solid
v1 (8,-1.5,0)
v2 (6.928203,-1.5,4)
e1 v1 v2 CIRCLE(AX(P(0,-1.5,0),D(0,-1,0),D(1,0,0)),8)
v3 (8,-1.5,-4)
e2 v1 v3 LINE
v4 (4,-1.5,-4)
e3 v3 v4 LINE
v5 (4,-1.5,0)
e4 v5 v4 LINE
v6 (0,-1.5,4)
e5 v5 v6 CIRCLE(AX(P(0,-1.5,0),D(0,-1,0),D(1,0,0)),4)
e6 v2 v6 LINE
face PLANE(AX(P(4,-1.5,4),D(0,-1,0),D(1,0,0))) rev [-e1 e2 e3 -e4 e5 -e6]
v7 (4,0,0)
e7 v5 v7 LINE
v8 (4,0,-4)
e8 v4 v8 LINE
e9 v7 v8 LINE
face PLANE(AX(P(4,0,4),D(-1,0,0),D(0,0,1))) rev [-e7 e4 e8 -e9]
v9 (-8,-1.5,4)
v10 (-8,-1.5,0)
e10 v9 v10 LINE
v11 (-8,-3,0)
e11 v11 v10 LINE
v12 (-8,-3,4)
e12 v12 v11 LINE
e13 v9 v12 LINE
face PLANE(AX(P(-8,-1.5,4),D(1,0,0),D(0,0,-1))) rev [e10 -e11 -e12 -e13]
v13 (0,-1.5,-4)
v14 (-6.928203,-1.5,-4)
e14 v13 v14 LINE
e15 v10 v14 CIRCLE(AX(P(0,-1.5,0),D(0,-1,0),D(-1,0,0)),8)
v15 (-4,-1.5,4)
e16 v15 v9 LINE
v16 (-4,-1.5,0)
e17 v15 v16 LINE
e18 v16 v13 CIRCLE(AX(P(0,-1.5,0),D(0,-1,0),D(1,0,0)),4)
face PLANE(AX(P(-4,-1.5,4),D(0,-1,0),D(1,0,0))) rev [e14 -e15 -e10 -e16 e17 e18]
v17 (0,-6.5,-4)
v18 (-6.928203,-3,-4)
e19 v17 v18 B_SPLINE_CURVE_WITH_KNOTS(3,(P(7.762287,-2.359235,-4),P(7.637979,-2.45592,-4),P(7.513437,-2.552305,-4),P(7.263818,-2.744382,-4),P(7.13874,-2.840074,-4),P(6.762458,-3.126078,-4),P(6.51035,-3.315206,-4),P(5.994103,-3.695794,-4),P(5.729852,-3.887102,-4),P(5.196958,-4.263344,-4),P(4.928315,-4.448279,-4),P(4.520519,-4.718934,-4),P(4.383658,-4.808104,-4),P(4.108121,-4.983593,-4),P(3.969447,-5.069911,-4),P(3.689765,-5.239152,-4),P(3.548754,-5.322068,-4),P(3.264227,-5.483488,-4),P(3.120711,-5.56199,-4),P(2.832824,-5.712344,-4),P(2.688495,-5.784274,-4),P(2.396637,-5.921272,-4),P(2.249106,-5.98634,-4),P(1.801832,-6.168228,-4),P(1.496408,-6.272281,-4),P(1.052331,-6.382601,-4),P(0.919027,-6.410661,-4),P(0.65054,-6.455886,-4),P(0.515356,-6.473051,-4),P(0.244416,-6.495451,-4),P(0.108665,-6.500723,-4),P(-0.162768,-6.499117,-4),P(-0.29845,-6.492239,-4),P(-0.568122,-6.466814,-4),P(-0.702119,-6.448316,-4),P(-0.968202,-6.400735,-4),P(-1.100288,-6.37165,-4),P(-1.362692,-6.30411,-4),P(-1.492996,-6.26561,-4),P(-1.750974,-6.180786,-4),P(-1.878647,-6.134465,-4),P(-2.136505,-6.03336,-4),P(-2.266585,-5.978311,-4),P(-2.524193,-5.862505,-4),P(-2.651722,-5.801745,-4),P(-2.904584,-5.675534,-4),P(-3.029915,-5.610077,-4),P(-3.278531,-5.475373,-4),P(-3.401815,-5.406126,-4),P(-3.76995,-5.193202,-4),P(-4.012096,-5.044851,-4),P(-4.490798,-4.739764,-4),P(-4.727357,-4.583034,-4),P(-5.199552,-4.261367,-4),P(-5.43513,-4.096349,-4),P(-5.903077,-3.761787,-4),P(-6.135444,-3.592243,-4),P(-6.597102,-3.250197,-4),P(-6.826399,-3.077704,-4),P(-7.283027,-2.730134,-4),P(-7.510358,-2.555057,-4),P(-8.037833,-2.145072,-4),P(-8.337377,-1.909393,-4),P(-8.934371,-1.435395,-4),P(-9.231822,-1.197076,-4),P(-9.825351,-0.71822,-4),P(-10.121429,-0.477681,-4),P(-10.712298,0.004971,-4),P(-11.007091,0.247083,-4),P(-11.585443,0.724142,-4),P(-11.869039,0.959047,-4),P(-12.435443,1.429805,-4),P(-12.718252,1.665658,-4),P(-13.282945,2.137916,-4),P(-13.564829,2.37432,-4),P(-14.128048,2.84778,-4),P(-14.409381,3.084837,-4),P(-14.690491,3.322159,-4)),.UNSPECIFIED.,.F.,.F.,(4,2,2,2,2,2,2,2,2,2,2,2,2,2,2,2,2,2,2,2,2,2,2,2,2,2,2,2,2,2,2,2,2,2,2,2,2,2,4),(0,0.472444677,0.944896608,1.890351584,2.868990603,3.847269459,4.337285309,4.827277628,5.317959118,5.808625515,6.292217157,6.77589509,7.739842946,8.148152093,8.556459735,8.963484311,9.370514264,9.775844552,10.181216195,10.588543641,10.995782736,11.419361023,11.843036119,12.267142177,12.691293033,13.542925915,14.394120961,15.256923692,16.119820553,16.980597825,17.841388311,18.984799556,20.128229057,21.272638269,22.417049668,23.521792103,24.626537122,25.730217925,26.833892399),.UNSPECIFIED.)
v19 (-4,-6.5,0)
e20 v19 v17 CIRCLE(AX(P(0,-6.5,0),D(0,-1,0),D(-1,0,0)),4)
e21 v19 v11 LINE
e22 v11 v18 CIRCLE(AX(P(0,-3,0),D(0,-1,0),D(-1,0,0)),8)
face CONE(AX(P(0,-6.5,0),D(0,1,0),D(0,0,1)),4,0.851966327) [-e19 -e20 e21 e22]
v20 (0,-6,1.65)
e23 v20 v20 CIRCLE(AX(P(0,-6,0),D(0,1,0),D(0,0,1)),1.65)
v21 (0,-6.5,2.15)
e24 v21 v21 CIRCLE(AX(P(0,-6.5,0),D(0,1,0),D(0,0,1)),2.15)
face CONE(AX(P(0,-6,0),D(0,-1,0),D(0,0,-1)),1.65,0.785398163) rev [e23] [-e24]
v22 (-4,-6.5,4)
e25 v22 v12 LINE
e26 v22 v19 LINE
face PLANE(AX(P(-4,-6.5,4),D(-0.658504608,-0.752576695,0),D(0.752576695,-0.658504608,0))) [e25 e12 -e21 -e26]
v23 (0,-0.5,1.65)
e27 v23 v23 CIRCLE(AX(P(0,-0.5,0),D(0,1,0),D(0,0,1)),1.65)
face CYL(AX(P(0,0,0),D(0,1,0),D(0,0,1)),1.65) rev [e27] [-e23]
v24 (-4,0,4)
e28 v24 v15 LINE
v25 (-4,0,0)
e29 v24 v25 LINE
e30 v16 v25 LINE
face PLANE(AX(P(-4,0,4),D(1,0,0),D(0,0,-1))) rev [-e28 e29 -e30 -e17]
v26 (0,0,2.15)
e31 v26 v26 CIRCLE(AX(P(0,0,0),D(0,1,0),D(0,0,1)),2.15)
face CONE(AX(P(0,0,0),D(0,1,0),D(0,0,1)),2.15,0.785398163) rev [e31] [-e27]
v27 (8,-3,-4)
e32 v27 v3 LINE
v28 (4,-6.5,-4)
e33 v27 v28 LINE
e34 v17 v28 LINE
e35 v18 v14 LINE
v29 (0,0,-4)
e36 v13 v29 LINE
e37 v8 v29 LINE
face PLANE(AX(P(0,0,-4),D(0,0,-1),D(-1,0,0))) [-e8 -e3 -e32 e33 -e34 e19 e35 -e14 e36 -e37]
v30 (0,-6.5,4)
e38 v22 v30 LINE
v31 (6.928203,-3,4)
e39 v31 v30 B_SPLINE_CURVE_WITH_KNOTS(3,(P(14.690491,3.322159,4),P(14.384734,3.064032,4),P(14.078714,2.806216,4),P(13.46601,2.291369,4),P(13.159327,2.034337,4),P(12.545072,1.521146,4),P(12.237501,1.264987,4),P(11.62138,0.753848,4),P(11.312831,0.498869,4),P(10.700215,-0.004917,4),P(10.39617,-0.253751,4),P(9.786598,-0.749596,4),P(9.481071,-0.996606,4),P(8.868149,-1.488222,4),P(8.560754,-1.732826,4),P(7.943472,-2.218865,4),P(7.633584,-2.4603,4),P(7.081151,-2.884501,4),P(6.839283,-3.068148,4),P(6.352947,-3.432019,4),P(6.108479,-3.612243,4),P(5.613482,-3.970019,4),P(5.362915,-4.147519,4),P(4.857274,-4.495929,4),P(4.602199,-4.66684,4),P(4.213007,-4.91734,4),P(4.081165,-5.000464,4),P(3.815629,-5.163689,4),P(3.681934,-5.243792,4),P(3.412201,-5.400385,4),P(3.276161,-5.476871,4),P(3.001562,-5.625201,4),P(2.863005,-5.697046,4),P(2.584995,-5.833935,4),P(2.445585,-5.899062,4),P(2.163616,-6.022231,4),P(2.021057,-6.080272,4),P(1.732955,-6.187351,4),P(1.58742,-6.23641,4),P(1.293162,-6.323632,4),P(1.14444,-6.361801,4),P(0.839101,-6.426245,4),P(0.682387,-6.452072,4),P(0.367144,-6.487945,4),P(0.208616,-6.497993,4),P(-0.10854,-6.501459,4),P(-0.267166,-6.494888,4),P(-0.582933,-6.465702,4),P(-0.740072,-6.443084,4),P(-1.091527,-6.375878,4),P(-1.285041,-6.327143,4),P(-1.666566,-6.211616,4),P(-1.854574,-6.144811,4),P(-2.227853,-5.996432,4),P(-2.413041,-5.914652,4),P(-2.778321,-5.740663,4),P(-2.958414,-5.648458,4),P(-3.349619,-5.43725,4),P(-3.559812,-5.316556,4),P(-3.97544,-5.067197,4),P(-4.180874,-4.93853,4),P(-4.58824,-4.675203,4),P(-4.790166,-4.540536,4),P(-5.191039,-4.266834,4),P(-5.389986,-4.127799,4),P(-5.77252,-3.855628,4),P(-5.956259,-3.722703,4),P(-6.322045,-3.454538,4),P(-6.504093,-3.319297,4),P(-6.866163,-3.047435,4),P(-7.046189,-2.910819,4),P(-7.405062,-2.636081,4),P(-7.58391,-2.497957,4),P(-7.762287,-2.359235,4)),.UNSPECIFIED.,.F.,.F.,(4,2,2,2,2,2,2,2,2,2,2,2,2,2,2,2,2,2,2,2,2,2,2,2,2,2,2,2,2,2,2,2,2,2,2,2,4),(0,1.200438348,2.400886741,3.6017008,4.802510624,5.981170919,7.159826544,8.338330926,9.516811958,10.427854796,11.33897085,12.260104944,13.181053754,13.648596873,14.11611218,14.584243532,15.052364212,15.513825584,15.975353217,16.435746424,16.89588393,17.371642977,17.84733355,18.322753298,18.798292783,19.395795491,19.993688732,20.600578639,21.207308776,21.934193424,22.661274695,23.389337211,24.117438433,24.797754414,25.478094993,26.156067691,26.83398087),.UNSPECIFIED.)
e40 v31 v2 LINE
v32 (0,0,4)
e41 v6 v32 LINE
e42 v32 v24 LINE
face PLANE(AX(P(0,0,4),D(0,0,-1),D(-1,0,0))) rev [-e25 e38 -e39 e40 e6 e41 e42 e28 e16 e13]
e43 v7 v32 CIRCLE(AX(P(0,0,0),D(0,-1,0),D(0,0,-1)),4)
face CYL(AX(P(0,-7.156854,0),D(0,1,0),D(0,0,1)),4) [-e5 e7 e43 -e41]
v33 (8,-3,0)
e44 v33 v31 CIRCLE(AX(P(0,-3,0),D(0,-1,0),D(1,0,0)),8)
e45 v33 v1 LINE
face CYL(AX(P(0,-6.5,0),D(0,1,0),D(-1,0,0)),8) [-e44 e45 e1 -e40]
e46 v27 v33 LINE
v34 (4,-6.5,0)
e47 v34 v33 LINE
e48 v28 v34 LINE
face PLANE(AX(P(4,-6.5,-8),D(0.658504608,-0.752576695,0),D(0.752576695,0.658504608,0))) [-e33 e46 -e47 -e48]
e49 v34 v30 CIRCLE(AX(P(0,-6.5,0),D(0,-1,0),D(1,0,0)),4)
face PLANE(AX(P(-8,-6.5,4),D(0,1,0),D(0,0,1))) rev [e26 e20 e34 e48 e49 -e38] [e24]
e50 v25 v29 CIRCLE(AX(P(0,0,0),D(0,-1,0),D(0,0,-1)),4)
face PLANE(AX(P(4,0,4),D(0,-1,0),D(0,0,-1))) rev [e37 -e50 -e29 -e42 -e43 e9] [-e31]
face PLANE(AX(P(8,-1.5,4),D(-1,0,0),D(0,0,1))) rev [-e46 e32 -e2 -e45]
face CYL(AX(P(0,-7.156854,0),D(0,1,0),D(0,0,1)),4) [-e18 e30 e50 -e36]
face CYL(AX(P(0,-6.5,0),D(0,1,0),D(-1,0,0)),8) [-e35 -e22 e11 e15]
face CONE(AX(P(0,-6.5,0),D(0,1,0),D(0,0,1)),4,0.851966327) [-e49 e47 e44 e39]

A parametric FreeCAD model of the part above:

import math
import FreeCAD as App
import Part
import Sketcher

doc = App.newDocument("Part")
body = doc.addObject("PartDesign::Body", "Body")

# Sketch on XY plane
sketch1 = doc.addObject("Sketcher::SketchObject", "Sketch")
body.addObject(sketch1)
sketch1.AttachmentSupport = (doc.XY_Plane, [""])
sketch1.MapMode = "FlatFace"
sketch1.addGeometry([
    Part.LineSegment(App.Vector(4, 0, 0), App.Vector(-4, 0, 0)),  # 0
    Part.LineSegment(App.Vector(-4, 0, 0), App.Vector(-4, -1.5, 0)),  # 1
    Part.LineSegment(App.Vector(-4, -1.5, 0), App.Vector(-8, -1.5, 0)),  # 2
    Part.LineSegment(App.Vector(-8, -1.5, 0), App.Vector(-8, -6.5, 0)),  # 3
    Part.LineSegment(App.Vector(-8, -6.5, 0), App.Vector(8, -6.5, 0)),  # 4
    Part.LineSegment(App.Vector(8, -6.5, 0), App.Vector(8, -1.5, 0)),  # 5
    Part.LineSegment(App.Vector(8, -1.5, 0), App.Vector(4, -1.5, 0)),  # 6
    Part.LineSegment(App.Vector(4, -1.5, 0), App.Vector(4, 0, 0)),  # 7
], False)
sketch1.addConstraint([
    Sketcher.Constraint("Coincident", 0, 2, 1, 1),
    Sketcher.Constraint("Coincident", 1, 2, 2, 1),
    Sketcher.Constraint("Coincident", 2, 2, 3, 1),
    Sketcher.Constraint("Coincident", 3, 2, 4, 1),
    Sketcher.Constraint("Coincident", 4, 2, 5, 1),
    Sketcher.Constraint("Coincident", 5, 2, 6, 1),
    Sketcher.Constraint("Coincident", 6, 2, 7, 1),
    Sketcher.Constraint("Coincident", 7, 2, 0, 1),
    Sketcher.Constraint("Horizontal", 0),
    Sketcher.Constraint("Vertical", 1),
    Sketcher.Constraint("Horizontal", 2),
    Sketcher.Constraint("Vertical", 3),
    Sketcher.Constraint("Horizontal", 4),
    Sketcher.Constraint("Vertical", 5),
    Sketcher.Constraint("Horizontal", 6),
    Sketcher.Constraint("Vertical", 7),
    Sketcher.Constraint("Symmetric", 0, 2, 7, 2, -1, 1),
    Sketcher.Constraint("Symmetric", 2, 2, 5, 2, -2),
    Sketcher.Constraint("DistanceX", 0, 2, 0, 1, 8.0),
    Sketcher.Constraint("DistanceX", 2, 2, 2, 1, 4.0),
    Sketcher.Constraint("DistanceY", 3, 2, 3, 1, 5.0),
    Sketcher.Constraint("DistanceY", 1, 2, 1, 1, 1.5),
])
pad1 = doc.addObject("PartDesign::Pad", "Pad")
body.addObject(pad1)
pad1.Profile = sketch1
pad1.Length = 8
pad1.Midplane = True

# Sketch on YZ plane
sketch2 = doc.addObject("Sketcher::SketchObject", "Sketch001")
body.addObject(sketch2)
sketch2.AttachmentSupport = (doc.YZ_Plane, [""])
sketch2.MapMode = "FlatFace"
sketch2.addGeometry([
    Part.LineSegment(App.Vector(-6.5, 0, 0), App.Vector(0, 0, 0)),  # 0
    Part.LineSegment(App.Vector(0, 0, 0), App.Vector(0, 2.15, 0)),  # 1
    Part.LineSegment(App.Vector(0, 2.15, 0), App.Vector(-0.5, 1.65, 0)),  # 2
    Part.LineSegment(App.Vector(-0.5, 1.65, 0), App.Vector(-6, 1.65, 0)),  # 3
    Part.LineSegment(App.Vector(-6, 1.65, 0), App.Vector(-6.5, 2.15, 0)),  # 4
    Part.LineSegment(App.Vector(-6.5, 2.15, 0), App.Vector(-6.5, 0, 0)),  # 5
], False)
sketch2.addConstraint([
    Sketcher.Constraint("Coincident", 0, 2, 1, 1),
    Sketcher.Constraint("Coincident", 1, 2, 2, 1),
    Sketcher.Constraint("Coincident", 2, 2, 3, 1),
    Sketcher.Constraint("Coincident", 3, 2, 4, 1),
    Sketcher.Constraint("Coincident", 4, 2, 5, 1),
    Sketcher.Constraint("Coincident", 5, 2, 0, 1),
    Sketcher.Constraint("Horizontal", 0),
    Sketcher.Constraint("Vertical", 1),
    Sketcher.Constraint("Horizontal", 3),
    Sketcher.Constraint("Vertical", 5),
    Sketcher.Constraint("Coincident", 0, 2, -1, 1),
    Sketcher.Constraint("Perpendicular", 2, 4),
    Sketcher.Constraint("Horizontal", 1, 2, 4, 2),
    Sketcher.Constraint("Equal", 2, 4),
    Sketcher.Constraint("DistanceX", 0, 1, 0, 2, 6.5),
    Sketcher.Constraint("DistanceX", 3, 2, 3, 1, 5.5),
    Sketcher.Constraint("DistanceY", 1, 1, 1, 2, 2.15),
])
groove = doc.addObject("PartDesign::Groove", "Groove")
body.addObject(groove)
groove.Profile = sketch2
groove.ReferenceAxis = (sketch2, ["H_Axis"])
groove.Angle = 360

# Sketch on XZ plane
sketch3 = doc.addObject("Sketcher::SketchObject", "Sketch002")
body.addObject(sketch3)
sketch3.AttachmentSupport = (doc.XZ_Plane, [""])
sketch3.MapMode = "FlatFace"
sketch3.addGeometry([
    Part.LineSegment(App.Vector(-4, -4, 0), App.Vector(-4, 0, 0)),  # 0
    Part.ArcOfCircle(Part.Circle(App.Vector(0, 0, 0), App.Vector(0, 0, 1), 4), math.radians(180), math.radians(270)),  # 1
    Part.LineSegment(App.Vector(0, -4, 0), App.Vector(-4, -4, 0)),  # 2
    Part.LineSegment(App.Vector(0, 4, 0), App.Vector(4, 4, 0)),  # 3
    Part.LineSegment(App.Vector(4, 4, 0), App.Vector(4, 0, 0)),  # 4
    Part.ArcOfCircle(Part.Circle(App.Vector(0, 0, 0), App.Vector(0, 0, 1), 4), math.radians(0), math.radians(90)),  # 5
], False)
sketch3.addConstraint([
    Sketcher.Constraint("Tangent", 0, 2, 1, 1),
    Sketcher.Constraint("Tangent", 1, 2, 2, 1),
    Sketcher.Constraint("Coincident", 2, 2, 0, 1),
    Sketcher.Constraint("Coincident", 3, 2, 4, 1),
    Sketcher.Constraint("Tangent", 4, 2, 5, 1),
    Sketcher.Constraint("Tangent", 5, 2, 3, 1),
    Sketcher.Constraint("Vertical", 0),
    Sketcher.Constraint("Horizontal", 2),
    Sketcher.Constraint("Horizontal", 3),
    Sketcher.Constraint("Vertical", 4),
    Sketcher.Constraint("Coincident", 1, 3, -1, 1),
    Sketcher.Constraint("Coincident", 5, 3, -1, 1),
    Sketcher.Constraint("Equal", 1, 5),
    Sketcher.Constraint("Radius", 1, 4.0),
])
pocket1 = doc.addObject("PartDesign::Pocket", "Pocket")
body.addObject(pocket1)
pocket1.Profile = sketch3
pocket1.Length = 1.5
pocket1.Reversed = True

# Sketch on XZ plane
sketch4 = doc.addObject("Sketcher::SketchObject", "Sketch003")
body.addObject(sketch4)
sketch4.AttachmentSupport = (doc.XZ_Plane, [""])
sketch4.MapMode = "FlatFace"
sketch4.AttachmentOffset = App.Placement(App.Vector(0, 0, 1.5), App.Rotation())
sketch4.addGeometry([
    Part.LineSegment(App.Vector(-8, -4, 0), App.Vector(-8, 0, 0)),  # 0
    Part.ArcOfCircle(Part.Circle(App.Vector(0, 0, 0), App.Vector(0, 0, 1), 8), math.radians(-180), math.radians(-150)),  # 1
    Part.LineSegment(App.Vector(-6.928203, -4, 0), App.Vector(-8, -4, 0)),  # 2
    Part.LineSegment(App.Vector(8, 4, 0), App.Vector(8, 0, 0)),  # 3
    Part.ArcOfCircle(Part.Circle(App.Vector(0, 0, 0), App.Vector(0, 0, 1), 8), math.radians(0), math.radians(30)),  # 4
    Part.LineSegment(App.Vector(6.928203, 4, 0), App.Vector(8, 4, 0)),  # 5
], False)
sketch4.addConstraint([
    Sketcher.Constraint("Tangent", 0, 2, 1, 1),
    Sketcher.Constraint("Coincident", 1, 2, 2, 1),
    Sketcher.Constraint("Coincident", 2, 2, 0, 1),
    Sketcher.Constraint("Tangent", 3, 2, 4, 1),
    Sketcher.Constraint("Coincident", 4, 2, 5, 1),
    Sketcher.Constraint("Coincident", 5, 2, 3, 1),
    Sketcher.Constraint("Vertical", 0),
    Sketcher.Constraint("Horizontal", 2),
    Sketcher.Constraint("Vertical", 3),
    Sketcher.Constraint("Horizontal", 5),
    Sketcher.Constraint("Coincident", 1, 3, -1, 1),
    Sketcher.Constraint("Coincident", 4, 3, -1, 1),
    Sketcher.Constraint("Equal", 1, 4),
    Sketcher.Constraint("Equal", 2, 5),
    Sketcher.Constraint("Radius", 1, 8.0),
    Sketcher.Constraint("DistanceY", 0, 1, 0, 2, 4.0),
])
pocket2 = doc.addObject("PartDesign::Pocket", "Pocket001")
body.addObject(pocket2)
pocket2.Profile = sketch4
pocket2.Type = "ThroughAll"
pocket2.Reversed = True

# Sketch on XY plane
sketch5 = doc.addObject("Sketcher::SketchObject", "Sketch004")
body.addObject(sketch5)
sketch5.AttachmentSupport = (doc.XY_Plane, [""])
sketch5.MapMode = "FlatFace"
sketch5.AttachmentOffset = App.Placement(App.Vector(0, 0, 4), App.Rotation())
sketch5.addGeometry([
    Part.LineSegment(App.Vector(-8, -3, 0), App.Vector(-8, -6.5, 0)),
    Part.LineSegment(App.Vector(-8, -6.5, 0), App.Vector(-4, -6.5, 0)),
    Part.LineSegment(App.Vector(-4, -6.5, 0), App.Vector(-8, -3, 0)),
], False)
sketch5.addConstraint([
    Sketcher.Constraint("Coincident", 0, 2, 1, 1),
    Sketcher.Constraint("Coincident", 1, 2, 2, 1),
    Sketcher.Constraint("Coincident", 2, 2, 0, 1),
    Sketcher.Constraint("Vertical", 0),
    Sketcher.Constraint("Horizontal", 1),
    Sketcher.Constraint("DistanceX", 1, 1, 1, 2, 4.0),
    Sketcher.Constraint("DistanceY", 0, 2, 0, 1, 3.5),
    Sketcher.Constraint("DistanceX", 0, 2, -1, 1, 8.0),
    Sketcher.Constraint("DistanceY", 2, 2, -1, 1, 3.0),
])

# Sketch on XZ plane
sketch6 = doc.addObject("Sketcher::SketchObject", "Sketch005")
body.addObject(sketch6)
sketch6.AttachmentSupport = (doc.XZ_Plane, [""])
sketch6.MapMode = "FlatFace"
sketch6.AttachmentOffset = App.Placement(App.Vector(0, 0, 6.5), App.Rotation())
sketch6.addGeometry([
    Part.LineSegment(App.Vector(0, 8, 0), App.Vector(-8, 8, 0)),  # 0
    Part.LineSegment(App.Vector(-8, 8, 0), App.Vector(-8, 0, 0)),  # 1
    Part.ArcOfCircle(Part.Circle(App.Vector(0, 0, 0), App.Vector(0, 0, 1), 8), math.radians(-180), math.radians(-90)),  # 2
    Part.LineSegment(App.Vector(0, -8, 0), App.Vector(8, -8, 0)),  # 3
    Part.LineSegment(App.Vector(8, -8, 0), App.Vector(8, 0, 0)),  # 4
    Part.ArcOfCircle(Part.Circle(App.Vector(0, 0, 0), App.Vector(0, 0, 1), 8), math.radians(0), math.radians(90)),  # 5
], False)
sketch6.addConstraint([
    Sketcher.Constraint("Coincident", 0, 2, 1, 1),
    Sketcher.Constraint("Tangent", 1, 2, 2, 1),
    Sketcher.Constraint("Tangent", 2, 2, 3, 1),
    Sketcher.Constraint("Coincident", 3, 2, 4, 1),
    Sketcher.Constraint("Tangent", 4, 2, 5, 1),
    Sketcher.Constraint("Tangent", 5, 2, 0, 1),
    Sketcher.Constraint("Horizontal", 0),
    Sketcher.Constraint("Vertical", 1),
    Sketcher.Constraint("Horizontal", 3),
    Sketcher.Constraint("Vertical", 4),
    Sketcher.Constraint("Coincident", 2, 3, -1, 1),
    Sketcher.Constraint("Coincident", 5, 3, -1, 1),
    Sketcher.Constraint("Equal", 2, 5),
    Sketcher.Constraint("Radius", 2, 8.0),
])
doc.recompute()

subtractivepipe = doc.addObject("PartDesign::SubtractivePipe", "SubtractivePipe")
body.addObject(subtractivepipe)
subtractivepipe.Profile = sketch5
subtractivepipe.Spine = (sketch6, ["Edge1", "Edge2", "Edge3", "Edge4", "Edge5", "Edge6"])
subtractivepipe.Transition = "Right corner"

doc.recompute()
